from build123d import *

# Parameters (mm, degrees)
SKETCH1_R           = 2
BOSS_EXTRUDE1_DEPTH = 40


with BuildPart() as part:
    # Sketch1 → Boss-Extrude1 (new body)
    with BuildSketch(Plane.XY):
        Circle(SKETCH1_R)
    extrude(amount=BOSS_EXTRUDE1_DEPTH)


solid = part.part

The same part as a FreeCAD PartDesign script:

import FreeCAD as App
import Part
import Sketcher

V = App.Vector
Q = App.Units.Quantity

doc = App.newDocument("Part")
body = doc.addObject("PartDesign::Body", "Body")

# Sketch on XY plane
sketch1 = body.newObject("Sketcher::SketchObject", "Sketch")
sketch1.AttachmentSupport = (doc.getObject("XY_Plane"), [""])
sketch1.MapMode = "FlatFace"
sketch1.addGeometry(Part.Circle(V(0, 0, 0), V(0, 0, 1), 2), False)
sketch1.addConstraint([
    Sketcher.Constraint("Coincident", 0, 3, -1, 1),
    Sketcher.Constraint("Diameter", 0, Q("4 mm")),
])
pad1 = body.newObject("PartDesign::Pad", "Pad")
pad1.Profile = sketch1
pad1.Length = 40

doc.recompute()
